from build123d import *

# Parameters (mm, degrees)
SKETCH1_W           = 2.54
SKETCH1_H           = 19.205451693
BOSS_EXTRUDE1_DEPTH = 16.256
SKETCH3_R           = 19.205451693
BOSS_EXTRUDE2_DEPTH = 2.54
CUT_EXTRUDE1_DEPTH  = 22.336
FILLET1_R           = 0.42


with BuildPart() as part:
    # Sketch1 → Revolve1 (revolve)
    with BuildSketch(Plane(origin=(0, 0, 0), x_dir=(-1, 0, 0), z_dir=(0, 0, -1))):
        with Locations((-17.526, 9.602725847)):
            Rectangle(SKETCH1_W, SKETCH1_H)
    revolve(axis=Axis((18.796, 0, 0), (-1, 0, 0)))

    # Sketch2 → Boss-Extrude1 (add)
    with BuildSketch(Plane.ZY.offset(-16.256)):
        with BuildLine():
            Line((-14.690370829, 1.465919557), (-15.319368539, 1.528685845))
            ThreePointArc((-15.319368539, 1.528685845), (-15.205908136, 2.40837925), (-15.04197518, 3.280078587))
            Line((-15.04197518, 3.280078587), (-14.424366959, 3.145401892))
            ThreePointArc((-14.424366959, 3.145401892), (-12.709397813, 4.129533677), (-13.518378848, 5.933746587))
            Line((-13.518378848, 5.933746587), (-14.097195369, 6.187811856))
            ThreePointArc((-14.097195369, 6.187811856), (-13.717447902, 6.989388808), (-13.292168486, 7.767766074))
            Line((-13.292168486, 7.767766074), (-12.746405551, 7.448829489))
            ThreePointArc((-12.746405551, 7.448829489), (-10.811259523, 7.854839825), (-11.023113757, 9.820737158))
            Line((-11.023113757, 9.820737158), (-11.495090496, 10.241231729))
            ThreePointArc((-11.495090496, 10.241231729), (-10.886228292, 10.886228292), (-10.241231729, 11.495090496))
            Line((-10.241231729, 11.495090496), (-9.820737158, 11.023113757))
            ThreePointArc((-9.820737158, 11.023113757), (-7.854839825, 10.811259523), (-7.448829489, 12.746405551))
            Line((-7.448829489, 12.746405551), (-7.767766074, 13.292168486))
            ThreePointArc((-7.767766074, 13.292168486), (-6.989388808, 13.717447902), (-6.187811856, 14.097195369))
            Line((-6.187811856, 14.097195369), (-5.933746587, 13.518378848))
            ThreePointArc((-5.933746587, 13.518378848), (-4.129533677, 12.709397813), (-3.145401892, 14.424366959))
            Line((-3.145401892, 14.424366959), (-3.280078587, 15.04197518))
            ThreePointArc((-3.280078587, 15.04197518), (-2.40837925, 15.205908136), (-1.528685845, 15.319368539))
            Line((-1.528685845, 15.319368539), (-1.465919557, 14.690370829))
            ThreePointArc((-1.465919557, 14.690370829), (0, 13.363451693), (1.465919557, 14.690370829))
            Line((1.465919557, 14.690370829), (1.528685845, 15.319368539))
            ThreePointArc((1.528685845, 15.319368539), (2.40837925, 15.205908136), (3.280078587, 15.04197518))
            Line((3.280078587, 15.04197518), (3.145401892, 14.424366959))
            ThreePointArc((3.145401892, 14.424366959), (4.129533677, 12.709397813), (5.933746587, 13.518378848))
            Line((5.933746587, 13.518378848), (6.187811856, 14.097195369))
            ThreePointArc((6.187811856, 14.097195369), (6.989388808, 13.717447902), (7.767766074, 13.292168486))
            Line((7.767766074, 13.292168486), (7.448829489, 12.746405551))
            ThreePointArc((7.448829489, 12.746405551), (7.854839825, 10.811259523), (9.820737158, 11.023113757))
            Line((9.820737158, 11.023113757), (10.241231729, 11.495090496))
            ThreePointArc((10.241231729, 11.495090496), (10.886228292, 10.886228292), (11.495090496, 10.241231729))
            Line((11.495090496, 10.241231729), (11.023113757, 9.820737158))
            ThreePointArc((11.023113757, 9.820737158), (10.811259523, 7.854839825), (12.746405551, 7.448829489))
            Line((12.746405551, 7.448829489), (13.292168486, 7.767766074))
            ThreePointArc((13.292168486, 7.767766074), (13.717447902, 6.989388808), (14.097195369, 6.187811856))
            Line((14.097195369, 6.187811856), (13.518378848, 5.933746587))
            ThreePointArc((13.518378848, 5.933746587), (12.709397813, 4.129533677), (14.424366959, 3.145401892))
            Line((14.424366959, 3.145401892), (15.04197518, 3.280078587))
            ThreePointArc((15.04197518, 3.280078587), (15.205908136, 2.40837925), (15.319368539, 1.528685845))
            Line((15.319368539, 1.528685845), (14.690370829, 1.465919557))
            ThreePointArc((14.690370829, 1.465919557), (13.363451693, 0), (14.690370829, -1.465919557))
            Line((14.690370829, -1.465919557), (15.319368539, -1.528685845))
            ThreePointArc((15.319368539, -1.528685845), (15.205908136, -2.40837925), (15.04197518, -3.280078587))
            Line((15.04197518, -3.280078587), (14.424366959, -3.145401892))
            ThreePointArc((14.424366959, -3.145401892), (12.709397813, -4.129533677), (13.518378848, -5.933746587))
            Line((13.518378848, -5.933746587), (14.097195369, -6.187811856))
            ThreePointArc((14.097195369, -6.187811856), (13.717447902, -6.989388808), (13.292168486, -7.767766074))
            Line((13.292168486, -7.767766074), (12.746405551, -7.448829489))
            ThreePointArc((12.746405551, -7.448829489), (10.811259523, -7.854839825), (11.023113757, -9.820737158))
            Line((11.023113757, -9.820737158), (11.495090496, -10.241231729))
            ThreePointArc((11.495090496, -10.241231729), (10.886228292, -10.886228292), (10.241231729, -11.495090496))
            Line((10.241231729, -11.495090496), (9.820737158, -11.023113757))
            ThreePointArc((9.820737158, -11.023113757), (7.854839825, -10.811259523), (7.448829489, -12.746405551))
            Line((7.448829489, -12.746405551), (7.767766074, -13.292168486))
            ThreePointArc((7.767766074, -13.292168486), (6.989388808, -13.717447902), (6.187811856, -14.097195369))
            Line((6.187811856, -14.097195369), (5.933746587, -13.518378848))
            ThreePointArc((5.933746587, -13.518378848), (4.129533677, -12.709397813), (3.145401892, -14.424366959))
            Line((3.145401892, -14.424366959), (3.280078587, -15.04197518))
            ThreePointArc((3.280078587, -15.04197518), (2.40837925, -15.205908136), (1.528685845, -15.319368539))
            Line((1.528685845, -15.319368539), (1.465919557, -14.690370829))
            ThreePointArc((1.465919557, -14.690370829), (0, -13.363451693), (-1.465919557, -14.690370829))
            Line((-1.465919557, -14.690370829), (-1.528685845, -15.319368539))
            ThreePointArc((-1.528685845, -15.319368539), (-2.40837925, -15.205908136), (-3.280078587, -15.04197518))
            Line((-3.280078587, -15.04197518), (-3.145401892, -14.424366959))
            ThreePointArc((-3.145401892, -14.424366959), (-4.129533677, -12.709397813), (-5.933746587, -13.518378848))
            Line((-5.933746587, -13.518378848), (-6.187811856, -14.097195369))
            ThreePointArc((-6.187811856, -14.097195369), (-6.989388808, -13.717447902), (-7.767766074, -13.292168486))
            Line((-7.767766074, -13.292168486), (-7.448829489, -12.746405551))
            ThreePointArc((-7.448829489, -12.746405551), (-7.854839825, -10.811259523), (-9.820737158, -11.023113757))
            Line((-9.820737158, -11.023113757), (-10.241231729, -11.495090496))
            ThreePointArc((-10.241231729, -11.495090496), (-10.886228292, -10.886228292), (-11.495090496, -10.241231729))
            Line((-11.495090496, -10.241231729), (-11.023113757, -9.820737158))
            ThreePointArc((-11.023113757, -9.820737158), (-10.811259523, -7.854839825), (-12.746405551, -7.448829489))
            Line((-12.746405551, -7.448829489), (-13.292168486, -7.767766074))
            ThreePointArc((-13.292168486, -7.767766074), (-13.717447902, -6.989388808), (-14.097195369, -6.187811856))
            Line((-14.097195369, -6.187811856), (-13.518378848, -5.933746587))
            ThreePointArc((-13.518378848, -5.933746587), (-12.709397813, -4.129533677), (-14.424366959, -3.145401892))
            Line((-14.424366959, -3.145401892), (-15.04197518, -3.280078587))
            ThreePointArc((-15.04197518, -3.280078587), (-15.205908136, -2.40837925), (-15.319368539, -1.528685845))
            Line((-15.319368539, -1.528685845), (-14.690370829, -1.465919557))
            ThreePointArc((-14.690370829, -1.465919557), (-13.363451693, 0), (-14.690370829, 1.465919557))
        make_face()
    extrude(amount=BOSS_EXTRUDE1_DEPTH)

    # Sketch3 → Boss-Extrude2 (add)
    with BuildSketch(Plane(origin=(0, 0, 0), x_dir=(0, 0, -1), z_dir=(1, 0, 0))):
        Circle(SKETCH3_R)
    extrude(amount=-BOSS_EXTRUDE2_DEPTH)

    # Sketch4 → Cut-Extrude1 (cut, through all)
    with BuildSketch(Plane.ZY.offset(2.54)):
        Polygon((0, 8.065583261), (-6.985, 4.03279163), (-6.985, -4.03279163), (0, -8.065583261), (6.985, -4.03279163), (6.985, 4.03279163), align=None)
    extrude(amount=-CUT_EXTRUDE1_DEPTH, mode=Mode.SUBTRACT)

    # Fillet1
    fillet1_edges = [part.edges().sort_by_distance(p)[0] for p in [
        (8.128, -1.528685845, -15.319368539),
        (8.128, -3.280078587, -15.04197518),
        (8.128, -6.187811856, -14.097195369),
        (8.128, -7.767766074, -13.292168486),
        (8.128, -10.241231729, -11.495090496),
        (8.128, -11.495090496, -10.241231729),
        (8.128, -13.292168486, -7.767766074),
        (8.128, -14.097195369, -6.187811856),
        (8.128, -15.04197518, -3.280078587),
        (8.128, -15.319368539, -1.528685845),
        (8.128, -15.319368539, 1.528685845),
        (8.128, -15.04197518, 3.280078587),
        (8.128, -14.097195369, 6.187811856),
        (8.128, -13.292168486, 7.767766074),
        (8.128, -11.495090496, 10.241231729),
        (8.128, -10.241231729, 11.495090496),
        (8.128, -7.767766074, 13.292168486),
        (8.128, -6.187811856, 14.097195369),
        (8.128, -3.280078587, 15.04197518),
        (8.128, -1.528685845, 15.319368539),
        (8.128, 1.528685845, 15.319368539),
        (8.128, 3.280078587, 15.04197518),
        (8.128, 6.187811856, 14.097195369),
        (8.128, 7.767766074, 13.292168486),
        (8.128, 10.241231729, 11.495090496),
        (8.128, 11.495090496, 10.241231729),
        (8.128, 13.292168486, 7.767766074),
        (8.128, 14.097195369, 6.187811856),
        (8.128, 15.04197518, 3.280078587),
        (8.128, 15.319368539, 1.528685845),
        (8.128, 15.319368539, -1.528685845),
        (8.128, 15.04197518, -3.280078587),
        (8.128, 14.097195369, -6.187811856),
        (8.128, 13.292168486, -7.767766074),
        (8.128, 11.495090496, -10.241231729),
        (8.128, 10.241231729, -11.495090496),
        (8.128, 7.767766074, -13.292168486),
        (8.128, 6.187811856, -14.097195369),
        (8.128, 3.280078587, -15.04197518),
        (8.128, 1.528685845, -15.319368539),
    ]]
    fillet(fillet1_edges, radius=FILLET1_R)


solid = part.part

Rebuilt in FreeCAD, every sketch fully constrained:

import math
import FreeCAD as App
import Part
import Sketcher

V = App.Vector
Q = App.Units.Quantity


def edges_at(feature, points):
    """Names of the edges that pass closest to the given points."""
    edges = feature.Shape.Edges
    near = lambda p: min(range(len(edges)), key=lambda i: edges[i].distToShape(Part.Vertex(*p))[0])
    return sorted({f"Edge{near(p) + 1}" for p in points})


def add_polygon(sketch, points):
    """Adds a closed chain of lines whose ends are joined by coincident constraints."""
    first, n = sketch.GeometryCount, len(points)
    for a, b in zip(points, points[1:] + points[:1]):
        sketch.addGeometry(Part.LineSegment(App.Vector(*a, 0), App.Vector(*b, 0)), False)
    for i in range(n):
        sketch.addConstraint(Sketcher.Constraint("Coincident", first + i, 2, first + (i + 1) % n, 1))

doc = App.newDocument("Part")
body = doc.addObject("PartDesign::Body", "Body")

# Sketch on XY plane
sketch1 = doc.addObject("Sketcher::SketchObject", "Sketch")
body.addObject(sketch1)
sketch1.AttachmentSupport = (doc.XY_Plane, [""])
sketch1.MapMode = "FlatFace"
add_polygon(sketch1, [(18.8, 19.2), (18.8, 0), (16.3, 0), (16.3, 19.2)])  # lines 0-3
sketch1.addConstraint([
    Sketcher.Constraint("Vertical", 0),
    Sketcher.Constraint("Horizontal", 1),
    Sketcher.Constraint("Vertical", 2),
    Sketcher.Constraint("Horizontal", 3),
    Sketcher.Constraint("PointOnObject", 0, 2, -1),
    Sketcher.Constraint("DistanceX", 1, 2, 1, 1, Q("0.1 in")),
    Sketcher.Constraint("DistanceX", -1, 1, 0, 2, Q("0.74 in")),
    Sketcher.Constraint("DistanceY", 0, 2, 0, 1, Q("19.205452 mm")),
])
revolution = doc.addObject("PartDesign::Revolution", "Revolution")
body.addObject(revolution)
revolution.Profile = sketch1
revolution.ReferenceAxis = (sketch1, ["H_Axis"])
revolution.Angle = 360

# Sketch on YZ plane
sketch2 = doc.addObject("Sketcher::SketchObject", "Sketch001")
body.addObject(sketch2)
sketch2.AttachmentSupport = (doc.YZ_Plane, [""])
sketch2.MapMode = "FlatFace"
sketch2.AttachmentOffset = App.Placement(V(0, 0, 0.64 * 25.4), App.Rotation())
sketch2.addGeometry([
    Part.LineSegment(V(1.5, -15.3, 0), V(1.5, -14.7, 0)),  # 0
    Part.ArcOfCircle(Part.Circle(V(0, -14.8, 0), V(0, 0, 1), 1.5), math.radians(6), math.radians(174)),  # 1
    Part.LineSegment(V(-1.5, -14.7, 0), V(-1.5, -15.3, 0)),  # 2
    Part.ArcOfCircle(Part.Circle(V(0, 0, 0), V(0, 0, 1), 15.4), math.radians(-102.3), math.radians(-95.7)),  # 3
    Part.LineSegment(V(-3.3, -15, 0), V(-3.1, -14.4, 0)),  # 4
    Part.ArcOfCircle(Part.Circle(V(-4.6, -14.1, 0), V(0, 0, 1), 1.5), math.radians(-12), math.radians(156)),  # 5
    Part.LineSegment(V(-5.9, -13.5, 0), V(-6.2, -14.1, 0)),  # 6
    Part.ArcOfCircle(Part.Circle(V(0, 0, 0), V(0, 0, 1), 15.4), math.radians(-120.3), math.radians(-113.7)),  # 7
    Part.LineSegment(V(-7.8, -13.3, 0), V(-7.4, -12.7, 0)),  # 8
    Part.ArcOfCircle(Part.Circle(V(-8.7, -12, 0), V(0, 0, 1), 1.5), math.radians(-30), math.radians(138)),  # 9
    Part.LineSegment(V(-9.8, -11, 0), V(-10.2, -11.5, 0)),  # 10
    Part.ArcOfCircle(Part.Circle(V(0, 0, 0), V(0, 0, 1), 15.4), math.radians(-138.3), math.radians(-131.7)),  # 11
    Part.LineSegment(V(-11.5, -10.2, 0), V(-11, -9.8, 0)),  # 12
    Part.ArcOfCircle(Part.Circle(V(-12, -8.7, 0), V(0, 0, 1), 1.5), math.radians(-48), math.radians(120)),  # 13
    Part.LineSegment(V(-12.7, -7.4, 0), V(-13.3, -7.8, 0)),  # 14
    Part.ArcOfCircle(Part.Circle(V(0, 0, 0), V(0, 0, 1), 15.4), math.radians(-156.3), math.radians(-149.7)),  # 15
    Part.LineSegment(V(-14.1, -6.2, 0), V(-13.5, -5.9, 0)),  # 16
    Part.ArcOfCircle(Part.Circle(V(-14.1, -4.6, 0), V(0, 0, 1), 1.5), math.radians(-66), math.radians(102)),  # 17
    Part.LineSegment(V(-14.4, -3.1, 0), V(-15, -3.3, 0)),  # 18
    Part.ArcOfCircle(Part.Circle(V(0, 0, 0), V(0, 0, 1), 15.4), math.radians(-174.3), math.radians(-167.7)),  # 19
    Part.LineSegment(V(-15.3, -1.5, 0), V(-14.7, -1.5, 0)),  # 20
    Part.ArcOfCircle(Part.Circle(V(-14.8, 0, 0), V(0, 0, 1), 1.5), math.radians(-84), math.radians(84)),  # 21
    Part.LineSegment(V(-14.7, 1.5, 0), V(-15.3, 1.5, 0)),  # 22
    Part.ArcOfCircle(Part.Circle(V(0, 0, 0), V(0, 0, 1), 15.4), math.radians(167.7), math.radians(174.3)),  # 23
    Part.LineSegment(V(-15, 3.3, 0), V(-14.4, 3.1, 0)),  # 24
    Part.ArcOfCircle(Part.Circle(V(-14.1, 4.6, 0), V(0, 0, 1), 1.5), math.radians(-102), math.radians(66)),  # 25
    Part.LineSegment(V(-13.5, 5.9, 0), V(-14.1, 6.2, 0)),  # 26
    Part.ArcOfCircle(Part.Circle(V(0, 0, 0), V(0, 0, 1), 15.4), math.radians(149.7), math.radians(156.3)),  # 27
    Part.LineSegment(V(-13.3, 7.8, 0), V(-12.7, 7.4, 0)),  # 28
    Part.ArcOfCircle(Part.Circle(V(-12, 8.7, 0), V(0, 0, 1), 1.5), math.radians(-120), math.radians(48)),  # 29
    Part.LineSegment(V(-11, 9.8, 0), V(-11.5, 10.2, 0)),  # 30
    Part.ArcOfCircle(Part.Circle(V(0, 0, 0), V(0, 0, 1), 15.4), math.radians(131.7), math.radians(138.3)),  # 31
    Part.LineSegment(V(-10.2, 11.5, 0), V(-9.8, 11, 0)),  # 32
    Part.ArcOfCircle(Part.Circle(V(-8.7, 12, 0), V(0, 0, 1), 1.5), math.radians(-138), math.radians(30)),  # 33
    Part.LineSegment(V(-7.4, 12.7, 0), V(-7.8, 13.3, 0)),  # 34
    Part.ArcOfCircle(Part.Circle(V(0, 0, 0), V(0, 0, 1), 15.4), math.radians(113.7), math.radians(120.3)),  # 35
    Part.LineSegment(V(-6.2, 14.1, 0), V(-5.9, 13.5, 0)),  # 36
    Part.ArcOfCircle(Part.Circle(V(-4.6, 14.1, 0), V(0, 0, 1), 1.5), math.radians(-156), math.radians(12)),  # 37
    Part.LineSegment(V(-3.1, 14.4, 0), V(-3.3, 15, 0)),  # 38
    Part.ArcOfCircle(Part.Circle(V(0, 0, 0), V(0, 0, 1), 15.4), math.radians(95.7), math.radians(102.3)),  # 39
    Part.LineSegment(V(-1.5, 15.3, 0), V(-1.5, 14.7, 0)),  # 40
    Part.ArcOfCircle(Part.Circle(V(0, 14.8, 0), V(0, 0, 1), 1.5), math.radians(-174), math.radians(-6)),  # 41
    Part.LineSegment(V(1.5, 14.7, 0), V(1.5, 15.3, 0)),  # 42
    Part.ArcOfCircle(Part.Circle(V(0, 0, 0), V(0, 0, 1), 15.4), math.radians(77.7), math.radians(84.3)),  # 43
    Part.LineSegment(V(3.3, 15, 0), V(3.1, 14.4, 0)),  # 44
    Part.ArcOfCircle(Part.Circle(V(4.6, 14.1, 0), V(0, 0, 1), 1.5), math.radians(168), math.radians(336)),  # 45
    Part.LineSegment(V(5.9, 13.5, 0), V(6.2, 14.1, 0)),  # 46
    Part.ArcOfCircle(Part.Circle(V(0, 0, 0), V(0, 0, 1), 15.4), math.radians(59.7), math.radians(66.3)),  # 47
    Part.LineSegment(V(7.8, 13.3, 0), V(7.4, 12.7, 0)),  # 48
    Part.ArcOfCircle(Part.Circle(V(8.7, 12, 0), V(0, 0, 1), 1.5), math.radians(150), math.radians(318)),  # 49
    Part.LineSegment(V(9.8, 11, 0), V(10.2, 11.5, 0)),  # 50
    Part.ArcOfCircle(Part.Circle(V(0, 0, 0), V(0, 0, 1), 15.4), math.radians(41.7), math.radians(48.3)),  # 51
    Part.LineSegment(V(11.5, 10.2, 0), V(11, 9.8, 0)),  # 52
    Part.ArcOfCircle(Part.Circle(V(12, 8.7, 0), V(0, 0, 1), 1.5), math.radians(132), math.radians(300)),  # 53
    Part.LineSegment(V(12.7, 7.4, 0), V(13.3, 7.8, 0)),  # 54
    Part.ArcOfCircle(Part.Circle(V(0, 0, 0), V(0, 0, 1), 15.4), math.radians(23.7), math.radians(30.3)),  # 55
    Part.LineSegment(V(14.1, 6.2, 0), V(13.5, 5.9, 0)),  # 56
    Part.ArcOfCircle(Part.Circle(V(14.1, 4.6, 0), V(0, 0, 1), 1.5), math.radians(114), math.radians(282)),  # 57
    Part.LineSegment(V(14.4, 3.1, 0), V(15, 3.3, 0)),  # 58
    Part.ArcOfCircle(Part.Circle(V(0, 0, 0), V(0, 0, 1), 15.4), math.radians(5.7), math.radians(12.3)),  # 59
    Part.LineSegment(V(15.3, 1.5, 0), V(14.7, 1.5, 0)),  # 60
    Part.ArcOfCircle(Part.Circle(V(14.8, 0, 0), V(0, 0, 1), 1.5), math.radians(96), math.radians(264)),  # 61
    Part.LineSegment(V(14.7, -1.5, 0), V(15.3, -1.5, 0)),  # 62
    Part.ArcOfCircle(Part.Circle(V(0, 0, 0), V(0, 0, 1), 15.4), math.radians(-12.3), math.radians(-5.7)),  # 63
    Part.LineSegment(V(15, -3.3, 0), V(14.4, -3.1, 0)),  # 64
    Part.ArcOfCircle(Part.Circle(V(14.1, -4.6, 0), V(0, 0, 1), 1.5), math.radians(78), math.radians(246)),  # 65
    Part.LineSegment(V(13.5, -5.9, 0), V(14.1, -6.2, 0)),  # 66
    Part.ArcOfCircle(Part.Circle(V(0, 0, 0), V(0, 0, 1), 15.4), math.radians(-30.3), math.radians(-23.7)),  # 67
    Part.LineSegment(V(13.3, -7.8, 0), V(12.7, -7.4, 0)),  # 68
    Part.ArcOfCircle(Part.Circle(V(12, -8.7, 0), V(0, 0, 1), 1.5), math.radians(60), math.radians(228)),  # 69
    Part.LineSegment(V(11, -9.8, 0), V(11.5, -10.2, 0)),  # 70
    Part.ArcOfCircle(Part.Circle(V(0, 0, 0), V(0, 0, 1), 15.4), math.radians(-48.3), math.radians(-41.7)),  # 71
    Part.LineSegment(V(10.2, -11.5, 0), V(9.8, -11, 0)),  # 72
    Part.ArcOfCircle(Part.Circle(V(8.7, -12, 0), V(0, 0, 1), 1.5), math.radians(42), math.radians(210)),  # 73
    Part.LineSegment(V(7.4, -12.7, 0), V(7.8, -13.3, 0)),  # 74
    Part.ArcOfCircle(Part.Circle(V(0, 0, 0), V(0, 0, 1), 15.4), math.radians(-66.3), math.radians(-59.7)),  # 75
    Part.LineSegment(V(6.2, -14.1, 0), V(5.9, -13.5, 0)),  # 76
    Part.ArcOfCircle(Part.Circle(V(4.6, -14.1, 0), V(0, 0, 1), 1.5), math.radians(24), math.radians(192)),  # 77
    Part.LineSegment(V(3.1, -14.4, 0), V(3.3, -15, 0)),  # 78
    Part.ArcOfCircle(Part.Circle(V(0, 0, 0), V(0, 0, 1), 15.4), math.radians(-84.3), math.radians(-77.7)),  # 79
], False)
sketch2.addConstraint([
    Sketcher.Constraint("Tangent", 0, 2, 1, 1),
    Sketcher.Constraint("Tangent", 1, 2, 2, 1),
    Sketcher.Constraint("Coincident", 2, 2, 3, 2),
    Sketcher.Constraint("Coincident", 3, 1, 4, 1),
    Sketcher.Constraint("Tangent", 4, 2, 5, 1),
    Sketcher.Constraint("Tangent", 5, 2, 6, 1),
    Sketcher.Constraint("Coincident", 6, 2, 7, 2),
    Sketcher.Constraint("Coincident", 7, 1, 8, 1),
    Sketcher.Constraint("Tangent", 8, 2, 9, 1),
    Sketcher.Constraint("Tangent", 9, 2, 10, 1),
    Sketcher.Constraint("Coincident", 10, 2, 11, 2),
    Sketcher.Constraint("Coincident", 11, 1, 12, 1),
    Sketcher.Constraint("Tangent", 12, 2, 13, 1),
    Sketcher.Constraint("Tangent", 13, 2, 14, 1),
    Sketcher.Constraint("Coincident", 14, 2, 15, 2),
    Sketcher.Constraint("Coincident", 15, 1, 16, 1),
    Sketcher.Constraint("Tangent", 16, 2, 17, 1),
    Sketcher.Constraint("Tangent", 17, 2, 18, 1),
    Sketcher.Constraint("Coincident", 18, 2, 19, 2),
    Sketcher.Constraint("Coincident", 19, 1, 20, 1),
    Sketcher.Constraint("Tangent", 20, 2, 21, 1),
    Sketcher.Constraint("Tangent", 21, 2, 22, 1),
    Sketcher.Constraint("Coincident", 22, 2, 23, 2),
    Sketcher.Constraint("Coincident", 23, 1, 24, 1),
    Sketcher.Constraint("Tangent", 24, 2, 25, 1),
    Sketcher.Constraint("Tangent", 25, 2, 26, 1),
    Sketcher.Constraint("Coincident", 26, 2, 27, 2),
    Sketcher.Constraint("Coincident", 27, 1, 28, 1),
    Sketcher.Constraint("Tangent", 28, 2, 29, 1),
    Sketcher.Constraint("Tangent", 29, 2, 30, 1),
    Sketcher.Constraint("Coincident", 30, 2, 31, 2),
    Sketcher.Constraint("Coincident", 31, 1, 32, 1),
    Sketcher.Constraint("Tangent", 32, 2, 33, 1),
    Sketcher.Constraint("Tangent", 33, 2, 34, 1),
    Sketcher.Constraint("Coincident", 34, 2, 35, 2),
    Sketcher.Constraint("Coincident", 35, 1, 36, 1),
    Sketcher.Constraint("Tangent", 36, 2, 37, 1),
    Sketcher.Constraint("Tangent", 37, 2, 38, 1),
    Sketcher.Constraint("Coincident", 38, 2, 39, 2),
    Sketcher.Constraint("Coincident", 39, 1, 40, 1),
    Sketcher.Constraint("Tangent", 40, 2, 41, 1),
    Sketcher.Constraint("Tangent", 41, 2, 42, 1),
    Sketcher.Constraint("Coincident", 42, 2, 43, 2),
    Sketcher.Constraint("Coincident", 43, 1, 44, 1),
    Sketcher.Constraint("Tangent", 44, 2, 45, 1),
    Sketcher.Constraint("Tangent", 45, 2, 46, 1),
    Sketcher.Constraint("Coincident", 46, 2, 47, 2),
    Sketcher.Constraint("Coincident", 47, 1, 48, 1),
    Sketcher.Constraint("Tangent", 48, 2, 49, 1),
    Sketcher.Constraint("Tangent", 49, 2, 50, 1),
    Sketcher.Constraint("Coincident", 50, 2, 51, 2),
    Sketcher.Constraint("Coincident", 51, 1, 52, 1),
    Sketcher.Constraint("Tangent", 52, 2, 53, 1),
    Sketcher.Constraint("Tangent", 53, 2, 54, 1),
    Sketcher.Constraint("Coincident", 54, 2, 55, 2),
    Sketcher.Constraint("Coincident", 55, 1, 56, 1),
    Sketcher.Constraint("Tangent", 56, 2, 57, 1),
    Sketcher.Constraint("Tangent", 57, 2, 58, 1),
    Sketcher.Constraint("Coincident", 58, 2, 59, 2),
    Sketcher.Constraint("Coincident", 59, 1, 60, 1),
    Sketcher.Constraint("Tangent", 60, 2, 61, 1),
    Sketcher.Constraint("Tangent", 61, 2, 62, 1),
    Sketcher.Constraint("Coincident", 62, 2, 63, 2),
    Sketcher.Constraint("Coincident", 63, 1, 64, 1),
    Sketcher.Constraint("Tangent", 64, 2, 65, 1),
    Sketcher.Constraint("Tangent", 65, 2, 66, 1),
    Sketcher.Constraint("Coincident", 66, 2, 67, 2),
    Sketcher.Constraint("Coincident", 67, 1, 68, 1),
    Sketcher.Constraint("Tangent", 68, 2, 69, 1),
    Sketcher.Constraint("Tangent", 69, 2, 70, 1),
    Sketcher.Constraint("Coincident", 70, 2, 71, 2),
    Sketcher.Constraint("Coincident", 71, 1, 72, 1),
    Sketcher.Constraint("Tangent", 72, 2, 73, 1),
    Sketcher.Constraint("Tangent", 73, 2, 74, 1),
    Sketcher.Constraint("Coincident", 74, 2, 75, 2),
    Sketcher.Constraint("Coincident", 75, 1, 76, 1),
    Sketcher.Constraint("Tangent", 76, 2, 77, 1),
    Sketcher.Constraint("Tangent", 77, 2, 78, 1),
    Sketcher.Constraint("Coincident", 78, 2, 79, 2),
    Sketcher.Constraint("Coincident", 79, 1, 0, 1),
    Sketcher.Constraint("Coincident", 3, 3, -1, 1),
    Sketcher.Constraint("Coincident", 7, 3, -1, 1),
    Sketcher.Constraint("Coincident", 11, 3, -1, 1),
    Sketcher.Constraint("Coincident", 15, 3, -1, 1),
    Sketcher.Constraint("Coincident", 19, 3, -1, 1),
    Sketcher.Constraint("Coincident", 23, 3, -1, 1),
    Sketcher.Constraint("Coincident", 27, 3, -1, 1),
    Sketcher.Constraint("Coincident", 31, 3, -1, 1),
    Sketcher.Constraint("Coincident", 35, 3, -1, 1),
    Sketcher.Constraint("Coincident", 39, 3, -1, 1),
    Sketcher.Constraint("Coincident", 43, 3, -1, 1),
    Sketcher.Constraint("Coincident", 47, 3, -1, 1),
    Sketcher.Constraint("Coincident", 51, 3, -1, 1),
    Sketcher.Constraint("Coincident", 55, 3, -1, 1),
    Sketcher.Constraint("Coincident", 59, 3, -1, 1),
    Sketcher.Constraint("Coincident", 63, 3, -1, 1),
    Sketcher.Constraint("Coincident", 67, 3, -1, 1),
    Sketcher.Constraint("Coincident", 71, 3, -1, 1),
    Sketcher.Constraint("Coincident", 75, 3, -1, 1),
    Sketcher.Constraint("Coincident", 79, 3, -1, 1),
    Sketcher.Constraint("Equal", 1, 5),
    Sketcher.Constraint("Equal", 3, 7),
    Sketcher.Constraint("Equal", 5, 9),
    Sketcher.Constraint("Equal", 7, 11),
    Sketcher.Constraint("Equal", 9, 13),
    Sketcher.Constraint("Equal", 11, 15),
    Sketcher.Constraint("Equal", 13, 17),
    Sketcher.Constraint("Equal", 15, 19),
    Sketcher.Constraint("Equal", 17, 21),
    Sketcher.Constraint("Equal", 19, 23),
    Sketcher.Constraint("Equal", 21, 25),
    Sketcher.Constraint("Equal", 23, 27),
    Sketcher.Constraint("Equal", 25, 29),
    Sketcher.Constraint("Equal", 27, 31),
    Sketcher.Constraint("Equal", 29, 33),
    Sketcher.Constraint("Equal", 31, 35),
    Sketcher.Constraint("Equal", 33, 37),
    Sketcher.Constraint("Equal", 35, 39),
    Sketcher.Constraint("Equal", 37, 41),
    Sketcher.Constraint("Equal", 39, 43),
    Sketcher.Constraint("Equal", 41, 45),
    Sketcher.Constraint("Equal", 43, 47),
    Sketcher.Constraint("Equal", 45, 49),
    Sketcher.Constraint("Equal", 47, 51),
    Sketcher.Constraint("Equal", 49, 53),
    Sketcher.Constraint("Equal", 51, 55),
    Sketcher.Constraint("Equal", 53, 57),
    Sketcher.Constraint("Equal", 55, 59),
    Sketcher.Constraint("Equal", 57, 61),
    Sketcher.Constraint("Equal", 59, 63),
    Sketcher.Constraint("Equal", 61, 65),
    Sketcher.Constraint("Equal", 63, 67),
    Sketcher.Constraint("Equal", 65, 69),
    Sketcher.Constraint("Equal", 67, 71),
    Sketcher.Constraint("Equal", 69, 73),
    Sketcher.Constraint("Equal", 71, 75),
    Sketcher.Constraint("Equal", 73, 77),
    Sketcher.Constraint("Equal", 75, 79),
    Sketcher.Constraint("Symmetric", 1, 3, 41, 3, -1, 1),
    Sketcher.Constraint("Symmetric", 5, 3, 45, 3, -1, 1),
    Sketcher.Constraint("Symmetric", 9, 3, 49, 3, -1, 1),
    Sketcher.Constraint("Symmetric", 13, 3, 53, 3, -1, 1),
    Sketcher.Constraint("Symmetric", 17, 3, 57, 3, -1, 1),
    Sketcher.Constraint("Symmetric", 21, 3, 61, 3, -1, 1),
    Sketcher.Constraint("Symmetric", 25, 3, 65, 3, -1, 1),
    Sketcher.Constraint("Symmetric", 29, 3, 69, 3, -1, 1),
    Sketcher.Constraint("Symmetric", 33, 3, 73, 3, -1, 1),
    Sketcher.Constraint("Symmetric", 37, 3, 77, 3, -1, 1),
    Sketcher.Constraint("Symmetric", 37, 3, 45, 3, -2),
    Sketcher.Constraint("Symmetric", 33, 3, 49, 3, -2),
    Sketcher.Constraint("Symmetric", 29, 3, 53, 3, -2),
    Sketcher.Constraint("Symmetric", 25, 3, 57, 3, -2),
    Sketcher.Constraint("Symmetric", 0, 2, 1, 2, -2),
    Sketcher.Constraint("Symmetric", 21, 2, 60, 2, -2),
    Sketcher.Constraint("Perpendicular", 0, 20),
    Sketcher.Constraint("Perpendicular", 2, 22),
    Sketcher.Constraint("Perpendicular", 4, 24),
    Sketcher.Constraint("Perpendicular", 6, 26),
    Sketcher.Constraint("Perpendicular", 8, 28),
    Sketcher.Constraint("Perpendicular", 10, 30),
    Sketcher.Constraint("Perpendicular", 12, 32),
    Sketcher.Constraint("Perpendicular", 14, 34),
    Sketcher.Constraint("Perpendicular", 16, 36),
    Sketcher.Constraint("Perpendicular", 18, 38),
    Sketcher.Constraint("Perpendicular", 20, 40),
    Sketcher.Constraint("Perpendicular", 22, 42),
    Sketcher.Constraint("Perpendicular", 24, 44),
    Sketcher.Constraint("Perpendicular", 26, 46),
    Sketcher.Constraint("Perpendicular", 28, 48),
    Sketcher.Constraint("Perpendicular", 30, 50),
    Sketcher.Constraint("Perpendicular", 32, 52),
    Sketcher.Constraint("Perpendicular", 34, 54),
    Sketcher.Constraint("Perpendicular", 36, 56),
    Sketcher.Constraint("Perpendicular", 38, 58),
    Sketcher.Constraint("Perpendicular", 42, 62),
    Sketcher.Constraint("Perpendicular", 44, 64),
    Sketcher.Constraint("Perpendicular", 46, 66),
    Sketcher.Constraint("Perpendicular", 48, 68),
    Sketcher.Constraint("Perpendicular", 50, 70),
    Sketcher.Constraint("Perpendicular", 52, 72),
    Sketcher.Constraint("Perpendicular", 54, 74),
    Sketcher.Constraint("Perpendicular", 56, 76),
    Sketcher.Constraint("Perpendicular", 58, 78),
    Sketcher.Constraint("Horizontal", 38, 2, 43, 1),
    Sketcher.Constraint("Horizontal", 36, 2, 45, 2),
    Sketcher.Constraint("Horizontal", 34, 2, 47, 1),
    Sketcher.Constraint("Horizontal", 32, 2, 49, 2),
    Sketcher.Constraint("Equal", 2, 4),
    Sketcher.Constraint("Equal", 4, 6),
    Sketcher.Constraint("Equal", 6, 8),
    Sketcher.Constraint("Equal", 8, 10),
    Sketcher.Constraint("Equal", 10, 12),
    Sketcher.Constraint("Equal", 12, 14),
    Sketcher.Constraint("Equal", 14, 16),
    Sketcher.Constraint("Equal", 16, 18),
    Sketcher.Constraint("Equal", 18, 20),
    Sketcher.Constraint("Radius", 1, Q("0.058 in")),
    Sketcher.Constraint("Radius", 3, Q("15.395452 mm")),
    Sketcher.Constraint("DistanceX", 4, 2, -1, 1, Q("3.145402 mm")),
    Sketcher.Constraint("Distance", 0, Q("0.632122 mm")),
    Sketcher.Constraint("DistanceY", 1, 3, -1, 1, Q("14.836652 mm")),
    Sketcher.Constraint("DistanceX", 3, 1, -1, 1, Q("3.280079 mm")),
    Sketcher.Constraint("DistanceY", 7, 1, -1, 1, Q("13.292168 mm")),
    Sketcher.Constraint("DistanceX", 8, 2, -1, 1, Q("7.448829 mm")),
])
pad1 = doc.addObject("PartDesign::Pad", "Pad")
body.addObject(pad1)
pad1.Profile = sketch2
pad1.Length = Q("0.64 in")
pad1.Reversed = True

# Sketch on YZ plane
sketch3 = doc.addObject("Sketcher::SketchObject", "Sketch002")
body.addObject(sketch3)
sketch3.AttachmentSupport = (doc.YZ_Plane, [""])
sketch3.MapMode = "FlatFace"
sketch3.addGeometry(Part.Circle(V(0, 0, 0), V(0, 0, 1), 19), False)
sketch3.addConstraint([
    Sketcher.Constraint("Coincident", 0, 3, -1, 1),
    Sketcher.Constraint("Diameter", 0, Q("38.410903 mm")),
])
pad2 = doc.addObject("PartDesign::Pad", "Pad001")
body.addObject(pad2)
pad2.Profile = sketch3
pad2.Length = Q("0.1 in")
pad2.Reversed = True

# Sketch on YZ plane
sketch4 = doc.addObject("Sketcher::SketchObject", "Sketch003")
body.addObject(sketch4)
sketch4.AttachmentSupport = (doc.YZ_Plane, [""])
sketch4.MapMode = "FlatFace"
sketch4.AttachmentOffset = App.Placement(V(0, 0, -0.1 * 25.4), App.Rotation())
add_polygon(sketch4, [(8, 0), (4, -7), (-4, -7), (-8, 0), (-4, 7), (4, 7)])  # lines 0-5
sketch4.addConstraint([
    Sketcher.Constraint("Horizontal", 1),
    Sketcher.Constraint("Horizontal", 4),
    Sketcher.Constraint("Symmetric", 0, 2, 3, 2, -1, 1),
    Sketcher.Constraint("Symmetric", 2, 2, 5, 2, -1, 1),
    Sketcher.Constraint("PointOnObject", 2, 2, -1),
    Sketcher.Constraint("Parallel", 2, 5),
    Sketcher.Constraint("Vertical", 1, 2, 3, 2),
    Sketcher.Constraint("Angle", 0, Q("-120 deg")),
    Sketcher.Constraint("DistanceY", 1, 2, 3, 2, Q("0.55 in")),
    Sketcher.Constraint("DistanceX", 1, 2, 1, 1, Q("8.065583 mm")),
])
pocket1 = doc.addObject("PartDesign::Pocket", "Pocket")
body.addObject(pocket1)
pocket1.Profile = sketch4
pocket1.Type = "ThroughAll"
pocket1.Reversed = True
doc.recompute()

fillet = doc.addObject("PartDesign::Fillet", "Fillet")
body.addObject(fillet)
fillet.Base = (pocket1, edges_at(pocket1, [
    (8.128, -1.529, -15.319),
    (8.128, -3.28, -15.042),
    (8.128, -6.188, -14.097),
    (8.128, -7.768, -13.292),
    (8.128, -10.241, -11.495),
    (8.128, -11.495, -10.241),
    (8.128, -13.292, -7.768),
    (8.128, -14.097, -6.188),
    (8.128, -15.042, -3.28),
    (8.128, -15.319, -1.529),
    (8.128, -15.319, 1.529),
    (8.128, -15.042, 3.28),
    (8.128, -14.097, 6.188),
    (8.128, -13.292, 7.768),
    (8.128, -11.495, 10.241),
    (8.128, -10.241, 11.495),
    (8.128, -7.768, 13.292),
    (8.128, -6.188, 14.097),
    (8.128, -3.28, 15.042),
    (8.128, -1.529, 15.319),
    (8.128, 1.529, 15.319),
    (8.128, 3.28, 15.042),
    (8.128, 6.188, 14.097),
    (8.128, 7.768, 13.292),
    (8.128, 10.241, 11.495),
    (8.128, 11.495, 10.241),
    (8.128, 13.292, 7.768),
    (8.128, 14.097, 6.188),
    (8.128, 15.042, 3.28),
    (8.128, 15.319, 1.529),
    (8.128, 15.319, -1.529),
    (8.128, 15.042, -3.28),
    (8.128, 14.097, -6.188),
    (8.128, 13.292, -7.768),
    (8.128, 11.495, -10.241),
    (8.128, 10.241, -11.495),
    (8.128, 7.768, -13.292),
    (8.128, 6.188, -14.097),
    (8.128, 3.28, -15.042),
    (8.128, 1.529, -15.319),
]))
fillet.Radius = 0.42

doc.recompute()
